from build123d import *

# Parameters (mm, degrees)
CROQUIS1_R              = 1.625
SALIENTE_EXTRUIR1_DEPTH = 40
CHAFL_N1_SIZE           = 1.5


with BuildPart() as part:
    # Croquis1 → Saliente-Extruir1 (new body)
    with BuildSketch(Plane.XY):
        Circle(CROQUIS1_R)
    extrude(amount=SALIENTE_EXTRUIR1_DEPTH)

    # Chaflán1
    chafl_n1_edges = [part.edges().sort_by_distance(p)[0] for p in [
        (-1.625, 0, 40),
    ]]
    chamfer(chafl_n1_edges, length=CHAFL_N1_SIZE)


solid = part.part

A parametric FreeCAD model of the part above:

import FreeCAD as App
import Part
import Sketcher


def edges_at(feature, points):
    """Names of the edges that pass closest to the given points."""
    edges = feature.Shape.Edges
    near = lambda p: min(range(len(edges)), key=lambda i: edges[i].distToShape(Part.Vertex(*p))[0])
    return sorted({f"Edge{near(p) + 1}" for p in points})

doc = App.newDocument("Part")
body = doc.addObject("PartDesign::Body", "Body")

# Sketch on XY plane
sketch1 = body.newObject("Sketcher::SketchObject", "Sketch")
sketch1.AttachmentSupport = (doc.getObject("XY_Plane"), [""])
sketch1.MapMode = "FlatFace"
sketch1.addGeometry(Part.Circle(App.Vector(0, 0, 0), App.Vector(0, 0, 1), 1.6), False)
sketch1.addConstraint(Sketcher.Constraint("Coincident", 0, 3, -1, 1))
sketch1.addConstraint(Sketcher.Constraint("Diameter", 0, 3.25))
pad1 = body.newObject("PartDesign::Pad", "Pad")
pad1.Profile = sketch1
pad1.Length = 40
doc.recompute()

chamfer = body.newObject("PartDesign::Chamfer", "Chamfer")
chamfer.Base = (pad1, edges_at(pad1, [(-1.625, 0, 40)]))
chamfer.Size = 1.5

doc.recompute()
